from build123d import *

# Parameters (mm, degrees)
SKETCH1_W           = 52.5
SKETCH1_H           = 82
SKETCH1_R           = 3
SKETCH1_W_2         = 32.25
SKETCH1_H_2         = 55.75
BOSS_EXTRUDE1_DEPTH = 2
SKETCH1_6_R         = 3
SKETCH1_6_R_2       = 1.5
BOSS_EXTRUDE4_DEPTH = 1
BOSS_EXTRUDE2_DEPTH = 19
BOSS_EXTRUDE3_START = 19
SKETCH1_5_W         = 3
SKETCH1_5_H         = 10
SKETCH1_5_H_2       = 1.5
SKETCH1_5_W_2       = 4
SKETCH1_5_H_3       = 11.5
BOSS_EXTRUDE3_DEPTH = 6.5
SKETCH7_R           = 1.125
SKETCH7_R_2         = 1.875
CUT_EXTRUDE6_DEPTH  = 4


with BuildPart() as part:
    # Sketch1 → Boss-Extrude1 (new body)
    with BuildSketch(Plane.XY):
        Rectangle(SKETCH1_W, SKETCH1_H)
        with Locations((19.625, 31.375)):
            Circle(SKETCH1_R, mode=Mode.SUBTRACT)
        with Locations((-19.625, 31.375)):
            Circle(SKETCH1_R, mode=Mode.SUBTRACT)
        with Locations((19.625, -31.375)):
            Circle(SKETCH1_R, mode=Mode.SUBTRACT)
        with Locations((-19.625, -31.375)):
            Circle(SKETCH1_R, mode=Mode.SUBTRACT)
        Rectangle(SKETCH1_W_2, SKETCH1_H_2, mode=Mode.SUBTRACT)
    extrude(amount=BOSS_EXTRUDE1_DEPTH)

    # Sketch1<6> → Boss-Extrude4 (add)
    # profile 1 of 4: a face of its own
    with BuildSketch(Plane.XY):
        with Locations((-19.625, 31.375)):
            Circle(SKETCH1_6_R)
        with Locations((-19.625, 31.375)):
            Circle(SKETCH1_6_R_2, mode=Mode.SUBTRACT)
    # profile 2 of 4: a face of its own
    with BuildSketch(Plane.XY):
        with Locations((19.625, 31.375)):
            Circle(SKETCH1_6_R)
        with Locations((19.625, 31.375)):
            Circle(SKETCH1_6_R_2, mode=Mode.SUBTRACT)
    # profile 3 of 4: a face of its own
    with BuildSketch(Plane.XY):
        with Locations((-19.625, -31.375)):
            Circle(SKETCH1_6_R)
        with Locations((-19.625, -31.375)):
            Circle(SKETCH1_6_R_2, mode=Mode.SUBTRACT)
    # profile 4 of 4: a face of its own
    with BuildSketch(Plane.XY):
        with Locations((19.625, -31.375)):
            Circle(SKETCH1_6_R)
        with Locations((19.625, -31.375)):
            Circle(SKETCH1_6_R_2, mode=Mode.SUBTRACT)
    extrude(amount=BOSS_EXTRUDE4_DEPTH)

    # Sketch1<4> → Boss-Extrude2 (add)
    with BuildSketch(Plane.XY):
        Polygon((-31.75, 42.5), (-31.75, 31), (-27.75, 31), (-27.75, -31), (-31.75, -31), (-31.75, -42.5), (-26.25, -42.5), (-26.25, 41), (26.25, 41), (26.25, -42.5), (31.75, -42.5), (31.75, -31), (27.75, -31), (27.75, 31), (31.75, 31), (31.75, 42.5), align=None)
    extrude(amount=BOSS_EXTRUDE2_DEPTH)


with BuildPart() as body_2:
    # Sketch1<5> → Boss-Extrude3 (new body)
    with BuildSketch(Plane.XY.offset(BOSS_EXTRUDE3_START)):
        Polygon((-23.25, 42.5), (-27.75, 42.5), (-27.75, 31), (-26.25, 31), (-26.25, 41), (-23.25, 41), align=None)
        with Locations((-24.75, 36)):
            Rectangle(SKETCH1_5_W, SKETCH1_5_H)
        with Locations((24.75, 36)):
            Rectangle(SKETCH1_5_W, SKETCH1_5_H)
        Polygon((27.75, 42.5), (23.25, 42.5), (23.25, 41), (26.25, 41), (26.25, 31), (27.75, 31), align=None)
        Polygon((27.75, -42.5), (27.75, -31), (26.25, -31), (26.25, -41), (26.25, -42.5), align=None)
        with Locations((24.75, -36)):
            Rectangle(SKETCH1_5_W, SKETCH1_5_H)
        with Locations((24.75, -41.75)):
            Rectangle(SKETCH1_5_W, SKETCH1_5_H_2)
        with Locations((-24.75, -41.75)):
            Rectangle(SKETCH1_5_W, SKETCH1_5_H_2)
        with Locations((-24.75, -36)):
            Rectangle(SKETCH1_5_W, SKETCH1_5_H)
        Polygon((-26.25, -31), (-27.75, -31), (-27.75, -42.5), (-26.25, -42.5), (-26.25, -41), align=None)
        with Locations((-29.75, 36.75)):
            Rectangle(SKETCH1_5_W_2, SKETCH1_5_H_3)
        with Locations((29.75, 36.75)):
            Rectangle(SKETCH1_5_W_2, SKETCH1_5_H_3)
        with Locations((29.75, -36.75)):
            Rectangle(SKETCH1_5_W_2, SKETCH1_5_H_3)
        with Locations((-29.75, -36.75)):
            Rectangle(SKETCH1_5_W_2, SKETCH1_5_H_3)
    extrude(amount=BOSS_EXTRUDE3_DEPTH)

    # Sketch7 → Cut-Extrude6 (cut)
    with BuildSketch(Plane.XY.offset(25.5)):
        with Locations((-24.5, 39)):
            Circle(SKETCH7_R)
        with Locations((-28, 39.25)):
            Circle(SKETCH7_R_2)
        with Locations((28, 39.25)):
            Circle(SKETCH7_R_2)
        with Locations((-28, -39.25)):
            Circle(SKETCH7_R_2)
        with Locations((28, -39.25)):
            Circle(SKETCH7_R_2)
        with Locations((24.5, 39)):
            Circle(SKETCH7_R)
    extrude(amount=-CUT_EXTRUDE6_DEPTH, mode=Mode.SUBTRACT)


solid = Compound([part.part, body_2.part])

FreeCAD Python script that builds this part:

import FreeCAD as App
import Part
import Sketcher


def add_polygon(sketch, points):
    """Adds a closed chain of lines whose ends are joined by coincident constraints."""
    first, n = sketch.GeometryCount, len(points)
    for a, b in zip(points, points[1:] + points[:1]):
        sketch.addGeometry(Part.LineSegment(App.Vector(*a, 0), App.Vector(*b, 0)), False)
    for i in range(n):
        sketch.addConstraint(Sketcher.Constraint("Coincident", first + i, 2, first + (i + 1) % n, 1))

doc = App.newDocument("Part")
body = doc.addObject("PartDesign::Body", "Body")

# Sketch on XY plane
sketch1 = body.newObject("Sketcher::SketchObject", "Sketch")
sketch1.AttachmentSupport = (doc.getObject("XY_Plane"), [""])
sketch1.MapMode = "FlatFace"
add_polygon(sketch1, [(-26.2, 41), (-26.2, -41), (26.2, -41), (26.2, 41)])  # lines 0-3
sketch1.addGeometry(Part.Circle(App.Vector(-19.6, -31.4, 0), App.Vector(0, 0, 1), 3), False)  # 4
sketch1.addGeometry(Part.Circle(App.Vector(19.6, -31.4, 0), App.Vector(0, 0, 1), 3), False)  # 5
sketch1.addGeometry(Part.Circle(App.Vector(-19.6, 31.4, 0), App.Vector(0, 0, 1), 3), False)  # 6
add_polygon(sketch1, [(16.1, -27.9), (-16.1, -27.9), (-16.1, 27.9), (16.1, 27.9)])  # lines 7-10
sketch1.addGeometry(Part.Circle(App.Vector(19.6, 31.4, 0), App.Vector(0, 0, 1), 3), False)  # 11
sketch1.addConstraint(Sketcher.Constraint("Vertical", 0))
sketch1.addConstraint(Sketcher.Constraint("Horizontal", 1))
sketch1.addConstraint(Sketcher.Constraint("Vertical", 2))
sketch1.addConstraint(Sketcher.Constraint("Horizontal", 3))
sketch1.addConstraint(Sketcher.Constraint("Horizontal", 7))
sketch1.addConstraint(Sketcher.Constraint("Vertical", 8))
sketch1.addConstraint(Sketcher.Constraint("Horizontal", 9))
sketch1.addConstraint(Sketcher.Constraint("Vertical", 10))
sketch1.addConstraint(Sketcher.Constraint("Equal", 4, 5))
sketch1.addConstraint(Sketcher.Constraint("Equal", 5, 6))
sketch1.addConstraint(Sketcher.Constraint("Equal", 6, 11))
sketch1.addConstraint(Sketcher.Constraint("Symmetric", 5, 3, 6, 3, -1, 1))
sketch1.addConstraint(Sketcher.Constraint("Symmetric", 4, 3, 11, 3, -1, 1))
sketch1.addConstraint(Sketcher.Constraint("Symmetric", 0, 2, 2, 2, -1, 1))
sketch1.addConstraint(Sketcher.Constraint("Symmetric", 7, 2, 9, 2, -1, 1))
sketch1.addConstraint(Sketcher.Constraint("Symmetric", 4, 3, 5, 3, -2))
sketch1.addConstraint(Sketcher.Constraint("Diameter", 4, 6.0))
sketch1.addConstraint(Sketcher.Constraint("DistanceY", 0, 2, 0, 1, 82.0))
sketch1.addConstraint(Sketcher.Constraint("DistanceX", 1, 1, 1, 2, 52.5))
sketch1.addConstraint(Sketcher.Constraint("DistanceX", 7, 2, 7, 1, 32.25))
sketch1.addConstraint(Sketcher.Constraint("DistanceY", 8, 1, 8, 2, 55.75))
sketch1.addConstraint(Sketcher.Constraint("DistanceX", 4, 3, 7, 2, 3.5))
sketch1.addConstraint(Sketcher.Constraint("DistanceY", 4, 3, 7, 2, 3.5))
pad1 = body.newObject("PartDesign::Pad", "Pad")
pad1.Profile = sketch1
pad1.Length = 2

# Sketch on XY plane
sketch2 = body.newObject("Sketcher::SketchObject", "Sketch001")
sketch2.AttachmentSupport = (doc.getObject("XY_Plane"), [""])
sketch2.MapMode = "FlatFace"
sketch2.addGeometry(Part.Circle(App.Vector(-19.6, 31.4, 0), App.Vector(0, 0, 1), 3), False)
sketch2.addGeometry(Part.Circle(App.Vector(-19.6, 31.4, 0), App.Vector(0, 0, 1), 1.5), False)
sketch2.addGeometry(Part.Circle(App.Vector(19.6, 31.4, 0), App.Vector(0, 0, 1), 3), False)
sketch2.addGeometry(Part.Circle(App.Vector(19.6, 31.4, 0), App.Vector(0, 0, 1), 1.5), False)
sketch2.addGeometry(Part.Circle(App.Vector(-19.6, -31.4, 0), App.Vector(0, 0, 1), 3), False)
sketch2.addGeometry(Part.Circle(App.Vector(-19.6, -31.4, 0), App.Vector(0, 0, 1), 1.5), False)
sketch2.addGeometry(Part.Circle(App.Vector(19.6, -31.4, 0), App.Vector(0, 0, 1), 3), False)
sketch2.addGeometry(Part.Circle(App.Vector(19.6, -31.4, 0), App.Vector(0, 0, 1), 1.5), False)
sketch2.addConstraint(Sketcher.Constraint("Coincident", 1, 3, 0, 3))
sketch2.addConstraint(Sketcher.Constraint("Coincident", 3, 3, 2, 3))
sketch2.addConstraint(Sketcher.Constraint("Coincident", 5, 3, 4, 3))
sketch2.addConstraint(Sketcher.Constraint("Coincident", 7, 3, 6, 3))
sketch2.addConstraint(Sketcher.Constraint("Equal", 0, 2))
sketch2.addConstraint(Sketcher.Constraint("Equal", 1, 3))
sketch2.addConstraint(Sketcher.Constraint("Equal", 2, 4))
sketch2.addConstraint(Sketcher.Constraint("Equal", 3, 5))
sketch2.addConstraint(Sketcher.Constraint("Equal", 4, 6))
sketch2.addConstraint(Sketcher.Constraint("Equal", 5, 7))
sketch2.addConstraint(Sketcher.Constraint("Symmetric", 2, 3, 4, 3, -1, 1))
sketch2.addConstraint(Sketcher.Constraint("Symmetric", 0, 3, 6, 3, -1, 1))
sketch2.addConstraint(Sketcher.Constraint("Symmetric", 0, 3, 2, 3, -2))
sketch2.addConstraint(Sketcher.Constraint("Diameter", 0, 6.0))
sketch2.addConstraint(Sketcher.Constraint("Diameter", 1, 3.0))
sketch2.addConstraint(Sketcher.Constraint("DistanceX", 0, 3, 2, 3, 39.25))
sketch2.addConstraint(Sketcher.Constraint("DistanceY", 4, 3, 0, 3, 62.75))
pad2 = body.newObject("PartDesign::Pad", "Pad001")
pad2.Profile = sketch2
pad2.Length = 1

# Sketch on XY plane
sketch3 = body.newObject("Sketcher::SketchObject", "Sketch002")
sketch3.AttachmentSupport = (doc.getObject("XY_Plane"), [""])
sketch3.MapMode = "FlatFace"
add_polygon(sketch3, [(-31.8, 42.5), (-31.8, 31), (-27.8, 31), (-27.8, -31), (-31.8, -31), (-31.8, -42.5), (-26.2, -42.5), (-26.2, 41), (26.2, 41), (26.2, -42.5), (31.8, -42.5), (31.8, -31), (27.8, -31), (27.8, 31), (31.8, 31), (31.8, 42.5)])  # lines 0-15
sketch3.addConstraint(Sketcher.Constraint("Vertical", 0))
sketch3.addConstraint(Sketcher.Constraint("Horizontal", 1))
sketch3.addConstraint(Sketcher.Constraint("Vertical", 2))
sketch3.addConstraint(Sketcher.Constraint("Horizontal", 3))
sketch3.addConstraint(Sketcher.Constraint("Vertical", 4))
sketch3.addConstraint(Sketcher.Constraint("Horizontal", 5))
sketch3.addConstraint(Sketcher.Constraint("Vertical", 6))
sketch3.addConstraint(Sketcher.Constraint("Horizontal", 7))
sketch3.addConstraint(Sketcher.Constraint("Vertical", 8))
sketch3.addConstraint(Sketcher.Constraint("Horizontal", 9))
sketch3.addConstraint(Sketcher.Constraint("Vertical", 10))
sketch3.addConstraint(Sketcher.Constraint("Horizontal", 11))
sketch3.addConstraint(Sketcher.Constraint("Vertical", 12))
sketch3.addConstraint(Sketcher.Constraint("Horizontal", 13))
sketch3.addConstraint(Sketcher.Constraint("Vertical", 14))
sketch3.addConstraint(Sketcher.Constraint("Horizontal", 15))
sketch3.addConstraint(Sketcher.Constraint("Symmetric", 0, 2, 10, 2, -1, 1))
sketch3.addConstraint(Sketcher.Constraint("Symmetric", 2, 2, 12, 2, -1, 1))
sketch3.addConstraint(Sketcher.Constraint("Symmetric", 4, 2, 14, 2, -1, 1))
sketch3.addConstraint(Sketcher.Constraint("Symmetric", 5, 2, 8, 2, -2))
sketch3.addConstraint(Sketcher.Constraint("Symmetric", 3, 2, 10, 2, -2))
sketch3.addConstraint(Sketcher.Constraint("DistanceX", 1, 1, 1, 2, 4.0))
sketch3.addConstraint(Sketcher.Constraint("DistanceY", 2, 2, 2, 1, 62.0))
sketch3.addConstraint(Sketcher.Constraint("DistanceX", 5, 1, 5, 2, 5.5))
sketch3.addConstraint(Sketcher.Constraint("DistanceX", 7, 1, 7, 2, 52.5))
sketch3.addConstraint(Sketcher.Constraint("DistanceY", 0, 2, 0, 1, 11.5))
sketch3.addConstraint(Sketcher.Constraint("DistanceY", 6, 1, 6, 2, 83.5))
pad3 = body.newObject("PartDesign::Pad", "Pad002")
pad3.Profile = sketch3
pad3.Length = 19
body2 = doc.addObject("PartDesign::Body", "Body001")
body2.AllowCompound = True

# Sketch on XY plane
sketch4 = body2.newObject("Sketcher::SketchObject", "Sketch003")
sketch4.AttachmentSupport = (doc.getObject("XY_Plane001"), [""])
sketch4.MapMode = "FlatFace"
sketch4.AttachmentOffset = App.Placement(App.Vector(0, 0, 19), App.Rotation())
add_polygon(sketch4, [(-23, 42), (-32, 42), (-32, 31), (-23, 31)])  # lines 0-3
add_polygon(sketch4, [(23, 31), (32, 31), (32, 42), (23, 42)])  # lines 4-7
add_polygon(sketch4, [(23, -31), (23, -42), (32, -42), (32, -31)])  # lines 8-11
add_polygon(sketch4, [(-23, -42), (-23, -31), (-32, -31), (-32, -42)])  # lines 12-15
sketch4.addConstraint(Sketcher.Constraint("Horizontal", 0))
sketch4.addConstraint(Sketcher.Constraint("Vertical", 1))
sketch4.addConstraint(Sketcher.Constraint("Horizontal", 2))
sketch4.addConstraint(Sketcher.Constraint("Vertical", 3))
sketch4.addConstraint(Sketcher.Constraint("Horizontal", 4))
sketch4.addConstraint(Sketcher.Constraint("Vertical", 5))
sketch4.addConstraint(Sketcher.Constraint("Horizontal", 6))
sketch4.addConstraint(Sketcher.Constraint("Vertical", 7))
sketch4.addConstraint(Sketcher.Constraint("Vertical", 8))
sketch4.addConstraint(Sketcher.Constraint("Horizontal", 9))
sketch4.addConstraint(Sketcher.Constraint("Vertical", 10))
sketch4.addConstraint(Sketcher.Constraint("Horizontal", 11))
sketch4.addConstraint(Sketcher.Constraint("Vertical", 12))
sketch4.addConstraint(Sketcher.Constraint("Horizontal", 13))
sketch4.addConstraint(Sketcher.Constraint("Vertical", 14))
sketch4.addConstraint(Sketcher.Constraint("Horizontal", 15))
sketch4.addConstraint(Sketcher.Constraint("Symmetric", 3, 2, 8, 2, -1, 1))
sketch4.addConstraint(Sketcher.Constraint("Symmetric", 1, 2, 10, 2, -1, 1))
sketch4.addConstraint(Sketcher.Constraint("Symmetric", 7, 2, 12, 2, -1, 1))
sketch4.addConstraint(Sketcher.Constraint("Symmetric", 5, 2, 14, 2, -1, 1))
sketch4.addConstraint(Sketcher.Constraint("Symmetric", 1, 2, 4, 2, -2))
sketch4.addConstraint(Sketcher.Constraint("Symmetric", 3, 2, 6, 2, -2))
sketch4.addConstraint(Sketcher.Constraint("DistanceX", 0, 2, 0, 1, 8.5))
sketch4.addConstraint(Sketcher.Constraint("DistanceY", 1, 2, 1, 1, 11.5))
sketch4.addConstraint(Sketcher.Constraint("DistanceY", -1, 1, 1, 2, 31.0))
sketch4.addConstraint(Sketcher.Constraint("DistanceX", 2, 2, 4, 2, 55.0))
pad4 = body2.newObject("PartDesign::Pad", "Pad003")
pad4.Profile = sketch4
pad4.Length = 6.5

# Sketch on XY plane
sketch5 = body2.newObject("Sketcher::SketchObject", "Sketch004")
sketch5.AttachmentSupport = (doc.getObject("XY_Plane001"), [""])
sketch5.MapMode = "FlatFace"
sketch5.AttachmentOffset = App.Placement(App.Vector(0, 0, 25.5), App.Rotation())
sketch5.addGeometry(Part.Circle(App.Vector(-24.5, 39, 0), App.Vector(0, 0, 1), 1.1), False)
sketch5.addGeometry(Part.Circle(App.Vector(-28, 39.2, 0), App.Vector(0, 0, 1), 1.9), False)
sketch5.addGeometry(Part.Circle(App.Vector(28, 39.2, 0), App.Vector(0, 0, 1), 1.9), False)
sketch5.addGeometry(Part.Circle(App.Vector(-28, -39.2, 0), App.Vector(0, 0, 1), 1.9), False)
sketch5.addGeometry(Part.Circle(App.Vector(28, -39.2, 0), App.Vector(0, 0, 1), 1.9), False)
sketch5.addGeometry(Part.Circle(App.Vector(24.5, 39, 0), App.Vector(0, 0, 1), 1.1), False)
sketch5.addConstraint(Sketcher.Constraint("Equal", 1, 2))
sketch5.addConstraint(Sketcher.Constraint("Equal", 2, 3))
sketch5.addConstraint(Sketcher.Constraint("Equal", 3, 4))
sketch5.addConstraint(Sketcher.Constraint("Equal", 0, 5))
sketch5.addConstraint(Sketcher.Constraint("Symmetric", 2, 3, 3, 3, -1, 1))
sketch5.addConstraint(Sketcher.Constraint("Symmetric", 1, 3, 4, 3, -1, 1))
sketch5.addConstraint(Sketcher.Constraint("Symmetric", 1, 3, 2, 3, -2))
sketch5.addConstraint(Sketcher.Constraint("Symmetric", 0, 3, 5, 3, -2))
sketch5.addConstraint(Sketcher.Constraint("Diameter", 0, 2.25))
sketch5.addConstraint(Sketcher.Constraint("Diameter", 1, 3.75))
sketch5.addConstraint(Sketcher.Constraint("DistanceY", -1, 1, 0, 3, 39.0))
sketch5.addConstraint(Sketcher.Constraint("DistanceX", 1, 3, -1, 1, 28.0))
sketch5.addConstraint(Sketcher.Constraint("DistanceX", 0, 3, 5, 3, 49.0))
sketch5.addConstraint(Sketcher.Constraint("DistanceY", 3, 3, 1, 3, 78.5))
pocket1 = body2.newObject("PartDesign::Pocket", "Pocket")
pocket1.Profile = sketch5
pocket1.Length = 4

doc.recompute()
